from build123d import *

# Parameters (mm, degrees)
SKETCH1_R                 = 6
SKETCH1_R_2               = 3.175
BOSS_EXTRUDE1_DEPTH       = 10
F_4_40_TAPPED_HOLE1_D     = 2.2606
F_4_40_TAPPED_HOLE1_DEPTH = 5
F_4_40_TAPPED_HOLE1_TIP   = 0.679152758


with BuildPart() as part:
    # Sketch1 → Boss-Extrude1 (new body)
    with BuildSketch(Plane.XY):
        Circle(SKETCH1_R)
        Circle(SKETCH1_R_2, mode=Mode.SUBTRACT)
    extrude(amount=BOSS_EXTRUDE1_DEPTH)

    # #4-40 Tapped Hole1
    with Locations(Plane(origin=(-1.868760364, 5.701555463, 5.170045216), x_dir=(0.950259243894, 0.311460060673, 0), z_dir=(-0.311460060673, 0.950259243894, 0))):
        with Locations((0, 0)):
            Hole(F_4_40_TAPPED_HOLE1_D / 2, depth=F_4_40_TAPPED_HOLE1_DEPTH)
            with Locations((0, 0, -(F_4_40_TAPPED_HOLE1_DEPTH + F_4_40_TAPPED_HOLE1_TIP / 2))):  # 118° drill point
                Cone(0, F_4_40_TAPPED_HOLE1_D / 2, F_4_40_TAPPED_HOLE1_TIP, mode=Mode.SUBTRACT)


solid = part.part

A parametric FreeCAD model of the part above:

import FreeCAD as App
import Part
import Sketcher
Q = App.Units.Quantity

doc = App.newDocument("Part")
body = doc.addObject("PartDesign::Body", "Body")

sketch1 = body.newObject("Sketcher::SketchObject", "Sketch")
sketch1.AttachmentSupport = (doc.getObject("XY_Plane"), [""])
sketch1.MapMode = "FlatFace"
sketch1.addGeometry([
    Part.Circle(App.Vector(0, 0, 0), App.Vector(0, 0, 1), 6),
    Part.Circle(App.Vector(0, 0, 0), App.Vector(0, 0, 1), 3.2),
], False)
sketch1.addConstraint([
    Sketcher.Constraint("Coincident", 0, 3, -1, 1),
    Sketcher.Constraint("Coincident", 1, 3, -1, 1),
    Sketcher.Constraint("Diameter", 0, Q("12 mm")),
    Sketcher.Constraint("Diameter", 1, Q("6.35 mm")),
])
pad1 = body.newObject("PartDesign::Pad", "Pad")
pad1.Profile = sketch1
pad1.Length = 10

sketch2 = body.newObject("Sketcher::SketchObject", "Sketch001")
sketch2.Placement = App.Placement(App.Vector(-1.86876, 5.701555, 0), App.Rotation(App.Vector(0.950259244, 0.311460061, 0), App.Vector(0, 0, -1), App.Vector(-0.311460061, 0.950259244, 0), "ZXY"))
sketch2.addGeometry(Part.Circle(App.Vector(0, -5.2, 0), App.Vector(0, 0, 1), 1.1), False)
sketch2.addConstraint([
    Sketcher.Constraint("PointOnObject", 0, 3, -2),
    Sketcher.Constraint("Diameter", 0, Q("2.2606 mm")),
    Sketcher.Constraint("DistanceY", 0, 3, -1, 1, Q("5.170045 mm")),
])
doc.recompute()
hole = body.newObject("PartDesign::Hole", "Hole")
hole.Profile = sketch2
hole.ThreadType = "None"
hole.Diameter = 2.2606
hole.DepthType = "Dimension"
hole.Depth = 5
hole.DrillPoint = "Angled"
hole.DrillPointAngle = 118

doc.recompute()
